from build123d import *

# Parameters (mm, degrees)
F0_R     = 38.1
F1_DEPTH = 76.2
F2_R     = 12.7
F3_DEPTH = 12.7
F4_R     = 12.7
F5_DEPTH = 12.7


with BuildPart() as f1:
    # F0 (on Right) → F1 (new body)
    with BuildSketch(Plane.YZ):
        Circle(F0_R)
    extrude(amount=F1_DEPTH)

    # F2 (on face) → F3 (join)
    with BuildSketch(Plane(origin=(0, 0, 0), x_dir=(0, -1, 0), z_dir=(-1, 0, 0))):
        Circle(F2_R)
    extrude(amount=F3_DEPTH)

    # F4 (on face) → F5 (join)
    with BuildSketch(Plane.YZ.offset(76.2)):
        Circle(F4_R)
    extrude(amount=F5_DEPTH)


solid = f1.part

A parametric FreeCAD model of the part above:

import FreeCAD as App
import Part
import Sketcher

V = App.Vector
Q = App.Units.Quantity

doc = App.newDocument("Part")
params = doc.addObject("Spreadsheet::Sheet", "Params")
for row, (alias, value) in enumerate([
    ("sketch1_diameter", "3 in"),
    ("pad1_length", "3 in"),
    ("sketch2_diameter", "1 in"),
    ("pad2_length", "0.5 in"),
    ("sketch3_diameter", "1 in"),
    ("pad3_length", "0.5 in"),
], start=1):
    params.set(f"A{row}", alias)
    params.set(f"B{row}", "=" + value)
    params.setAlias(f"B{row}", alias)

body = doc.addObject("PartDesign::Body", "Body")

# Sketch on YZ plane
sketch1 = doc.addObject("Sketcher::SketchObject", "Sketch")
body.addObject(sketch1)
sketch1.AttachmentSupport = (doc.YZ_Plane, [""])
sketch1.MapMode = "FlatFace"
sketch1.addGeometry(Part.Circle(V(0, 0, 0), V(0, 0, 1), 38), False)
sketch1.addConstraint([
    Sketcher.Constraint("Coincident", 0, 3, -1, 1),
    Sketcher.Constraint("Diameter", 0, Q("3 in")),
])
sketch1.setExpression("Constraints[1]", "Params.sketch1_diameter")
pad1 = doc.addObject("PartDesign::Pad", "Pad")
body.addObject(pad1)
pad1.Profile = sketch1
pad1.setExpression("Length", "Params.pad1_length")

# Sketch on YZ plane
sketch2 = doc.addObject("Sketcher::SketchObject", "Sketch001")
body.addObject(sketch2)
sketch2.AttachmentSupport = (doc.YZ_Plane, [""])
sketch2.MapMode = "FlatFace"
sketch2.addGeometry(Part.Circle(V(0, 0, 0), V(0, 0, 1), 13), False)
sketch2.addConstraint([
    Sketcher.Constraint("Coincident", 0, 3, -1, 1),
    Sketcher.Constraint("Diameter", 0, Q("1 in")),
])
sketch2.setExpression("Constraints[1]", "Params.sketch2_diameter")
pad2 = doc.addObject("PartDesign::Pad", "Pad001")
body.addObject(pad2)
pad2.Profile = sketch2
pad2.setExpression("Length", "Params.pad2_length")
pad2.Reversed = True

# Sketch on YZ plane
sketch3 = doc.addObject("Sketcher::SketchObject", "Sketch002")
body.addObject(sketch3)
sketch3.AttachmentSupport = (doc.YZ_Plane, [""])
sketch3.MapMode = "FlatFace"
sketch3.AttachmentOffset = App.Placement(V(0, 0, 3 * 25.4), App.Rotation())
sketch3.addGeometry(Part.Circle(V(0, 0, 0), V(0, 0, 1), 13), False)
sketch3.addConstraint([
    Sketcher.Constraint("Coincident", 0, 3, -1, 1),
    Sketcher.Constraint("Diameter", 0, Q("1 in")),
])
sketch3.setExpression("Constraints[1]", "Params.sketch3_diameter")
pad3 = doc.addObject("PartDesign::Pad", "Pad002")
body.addObject(pad3)
pad3.Profile = sketch3
pad3.setExpression("Length", "Params.pad3_length")

doc.recompute()
